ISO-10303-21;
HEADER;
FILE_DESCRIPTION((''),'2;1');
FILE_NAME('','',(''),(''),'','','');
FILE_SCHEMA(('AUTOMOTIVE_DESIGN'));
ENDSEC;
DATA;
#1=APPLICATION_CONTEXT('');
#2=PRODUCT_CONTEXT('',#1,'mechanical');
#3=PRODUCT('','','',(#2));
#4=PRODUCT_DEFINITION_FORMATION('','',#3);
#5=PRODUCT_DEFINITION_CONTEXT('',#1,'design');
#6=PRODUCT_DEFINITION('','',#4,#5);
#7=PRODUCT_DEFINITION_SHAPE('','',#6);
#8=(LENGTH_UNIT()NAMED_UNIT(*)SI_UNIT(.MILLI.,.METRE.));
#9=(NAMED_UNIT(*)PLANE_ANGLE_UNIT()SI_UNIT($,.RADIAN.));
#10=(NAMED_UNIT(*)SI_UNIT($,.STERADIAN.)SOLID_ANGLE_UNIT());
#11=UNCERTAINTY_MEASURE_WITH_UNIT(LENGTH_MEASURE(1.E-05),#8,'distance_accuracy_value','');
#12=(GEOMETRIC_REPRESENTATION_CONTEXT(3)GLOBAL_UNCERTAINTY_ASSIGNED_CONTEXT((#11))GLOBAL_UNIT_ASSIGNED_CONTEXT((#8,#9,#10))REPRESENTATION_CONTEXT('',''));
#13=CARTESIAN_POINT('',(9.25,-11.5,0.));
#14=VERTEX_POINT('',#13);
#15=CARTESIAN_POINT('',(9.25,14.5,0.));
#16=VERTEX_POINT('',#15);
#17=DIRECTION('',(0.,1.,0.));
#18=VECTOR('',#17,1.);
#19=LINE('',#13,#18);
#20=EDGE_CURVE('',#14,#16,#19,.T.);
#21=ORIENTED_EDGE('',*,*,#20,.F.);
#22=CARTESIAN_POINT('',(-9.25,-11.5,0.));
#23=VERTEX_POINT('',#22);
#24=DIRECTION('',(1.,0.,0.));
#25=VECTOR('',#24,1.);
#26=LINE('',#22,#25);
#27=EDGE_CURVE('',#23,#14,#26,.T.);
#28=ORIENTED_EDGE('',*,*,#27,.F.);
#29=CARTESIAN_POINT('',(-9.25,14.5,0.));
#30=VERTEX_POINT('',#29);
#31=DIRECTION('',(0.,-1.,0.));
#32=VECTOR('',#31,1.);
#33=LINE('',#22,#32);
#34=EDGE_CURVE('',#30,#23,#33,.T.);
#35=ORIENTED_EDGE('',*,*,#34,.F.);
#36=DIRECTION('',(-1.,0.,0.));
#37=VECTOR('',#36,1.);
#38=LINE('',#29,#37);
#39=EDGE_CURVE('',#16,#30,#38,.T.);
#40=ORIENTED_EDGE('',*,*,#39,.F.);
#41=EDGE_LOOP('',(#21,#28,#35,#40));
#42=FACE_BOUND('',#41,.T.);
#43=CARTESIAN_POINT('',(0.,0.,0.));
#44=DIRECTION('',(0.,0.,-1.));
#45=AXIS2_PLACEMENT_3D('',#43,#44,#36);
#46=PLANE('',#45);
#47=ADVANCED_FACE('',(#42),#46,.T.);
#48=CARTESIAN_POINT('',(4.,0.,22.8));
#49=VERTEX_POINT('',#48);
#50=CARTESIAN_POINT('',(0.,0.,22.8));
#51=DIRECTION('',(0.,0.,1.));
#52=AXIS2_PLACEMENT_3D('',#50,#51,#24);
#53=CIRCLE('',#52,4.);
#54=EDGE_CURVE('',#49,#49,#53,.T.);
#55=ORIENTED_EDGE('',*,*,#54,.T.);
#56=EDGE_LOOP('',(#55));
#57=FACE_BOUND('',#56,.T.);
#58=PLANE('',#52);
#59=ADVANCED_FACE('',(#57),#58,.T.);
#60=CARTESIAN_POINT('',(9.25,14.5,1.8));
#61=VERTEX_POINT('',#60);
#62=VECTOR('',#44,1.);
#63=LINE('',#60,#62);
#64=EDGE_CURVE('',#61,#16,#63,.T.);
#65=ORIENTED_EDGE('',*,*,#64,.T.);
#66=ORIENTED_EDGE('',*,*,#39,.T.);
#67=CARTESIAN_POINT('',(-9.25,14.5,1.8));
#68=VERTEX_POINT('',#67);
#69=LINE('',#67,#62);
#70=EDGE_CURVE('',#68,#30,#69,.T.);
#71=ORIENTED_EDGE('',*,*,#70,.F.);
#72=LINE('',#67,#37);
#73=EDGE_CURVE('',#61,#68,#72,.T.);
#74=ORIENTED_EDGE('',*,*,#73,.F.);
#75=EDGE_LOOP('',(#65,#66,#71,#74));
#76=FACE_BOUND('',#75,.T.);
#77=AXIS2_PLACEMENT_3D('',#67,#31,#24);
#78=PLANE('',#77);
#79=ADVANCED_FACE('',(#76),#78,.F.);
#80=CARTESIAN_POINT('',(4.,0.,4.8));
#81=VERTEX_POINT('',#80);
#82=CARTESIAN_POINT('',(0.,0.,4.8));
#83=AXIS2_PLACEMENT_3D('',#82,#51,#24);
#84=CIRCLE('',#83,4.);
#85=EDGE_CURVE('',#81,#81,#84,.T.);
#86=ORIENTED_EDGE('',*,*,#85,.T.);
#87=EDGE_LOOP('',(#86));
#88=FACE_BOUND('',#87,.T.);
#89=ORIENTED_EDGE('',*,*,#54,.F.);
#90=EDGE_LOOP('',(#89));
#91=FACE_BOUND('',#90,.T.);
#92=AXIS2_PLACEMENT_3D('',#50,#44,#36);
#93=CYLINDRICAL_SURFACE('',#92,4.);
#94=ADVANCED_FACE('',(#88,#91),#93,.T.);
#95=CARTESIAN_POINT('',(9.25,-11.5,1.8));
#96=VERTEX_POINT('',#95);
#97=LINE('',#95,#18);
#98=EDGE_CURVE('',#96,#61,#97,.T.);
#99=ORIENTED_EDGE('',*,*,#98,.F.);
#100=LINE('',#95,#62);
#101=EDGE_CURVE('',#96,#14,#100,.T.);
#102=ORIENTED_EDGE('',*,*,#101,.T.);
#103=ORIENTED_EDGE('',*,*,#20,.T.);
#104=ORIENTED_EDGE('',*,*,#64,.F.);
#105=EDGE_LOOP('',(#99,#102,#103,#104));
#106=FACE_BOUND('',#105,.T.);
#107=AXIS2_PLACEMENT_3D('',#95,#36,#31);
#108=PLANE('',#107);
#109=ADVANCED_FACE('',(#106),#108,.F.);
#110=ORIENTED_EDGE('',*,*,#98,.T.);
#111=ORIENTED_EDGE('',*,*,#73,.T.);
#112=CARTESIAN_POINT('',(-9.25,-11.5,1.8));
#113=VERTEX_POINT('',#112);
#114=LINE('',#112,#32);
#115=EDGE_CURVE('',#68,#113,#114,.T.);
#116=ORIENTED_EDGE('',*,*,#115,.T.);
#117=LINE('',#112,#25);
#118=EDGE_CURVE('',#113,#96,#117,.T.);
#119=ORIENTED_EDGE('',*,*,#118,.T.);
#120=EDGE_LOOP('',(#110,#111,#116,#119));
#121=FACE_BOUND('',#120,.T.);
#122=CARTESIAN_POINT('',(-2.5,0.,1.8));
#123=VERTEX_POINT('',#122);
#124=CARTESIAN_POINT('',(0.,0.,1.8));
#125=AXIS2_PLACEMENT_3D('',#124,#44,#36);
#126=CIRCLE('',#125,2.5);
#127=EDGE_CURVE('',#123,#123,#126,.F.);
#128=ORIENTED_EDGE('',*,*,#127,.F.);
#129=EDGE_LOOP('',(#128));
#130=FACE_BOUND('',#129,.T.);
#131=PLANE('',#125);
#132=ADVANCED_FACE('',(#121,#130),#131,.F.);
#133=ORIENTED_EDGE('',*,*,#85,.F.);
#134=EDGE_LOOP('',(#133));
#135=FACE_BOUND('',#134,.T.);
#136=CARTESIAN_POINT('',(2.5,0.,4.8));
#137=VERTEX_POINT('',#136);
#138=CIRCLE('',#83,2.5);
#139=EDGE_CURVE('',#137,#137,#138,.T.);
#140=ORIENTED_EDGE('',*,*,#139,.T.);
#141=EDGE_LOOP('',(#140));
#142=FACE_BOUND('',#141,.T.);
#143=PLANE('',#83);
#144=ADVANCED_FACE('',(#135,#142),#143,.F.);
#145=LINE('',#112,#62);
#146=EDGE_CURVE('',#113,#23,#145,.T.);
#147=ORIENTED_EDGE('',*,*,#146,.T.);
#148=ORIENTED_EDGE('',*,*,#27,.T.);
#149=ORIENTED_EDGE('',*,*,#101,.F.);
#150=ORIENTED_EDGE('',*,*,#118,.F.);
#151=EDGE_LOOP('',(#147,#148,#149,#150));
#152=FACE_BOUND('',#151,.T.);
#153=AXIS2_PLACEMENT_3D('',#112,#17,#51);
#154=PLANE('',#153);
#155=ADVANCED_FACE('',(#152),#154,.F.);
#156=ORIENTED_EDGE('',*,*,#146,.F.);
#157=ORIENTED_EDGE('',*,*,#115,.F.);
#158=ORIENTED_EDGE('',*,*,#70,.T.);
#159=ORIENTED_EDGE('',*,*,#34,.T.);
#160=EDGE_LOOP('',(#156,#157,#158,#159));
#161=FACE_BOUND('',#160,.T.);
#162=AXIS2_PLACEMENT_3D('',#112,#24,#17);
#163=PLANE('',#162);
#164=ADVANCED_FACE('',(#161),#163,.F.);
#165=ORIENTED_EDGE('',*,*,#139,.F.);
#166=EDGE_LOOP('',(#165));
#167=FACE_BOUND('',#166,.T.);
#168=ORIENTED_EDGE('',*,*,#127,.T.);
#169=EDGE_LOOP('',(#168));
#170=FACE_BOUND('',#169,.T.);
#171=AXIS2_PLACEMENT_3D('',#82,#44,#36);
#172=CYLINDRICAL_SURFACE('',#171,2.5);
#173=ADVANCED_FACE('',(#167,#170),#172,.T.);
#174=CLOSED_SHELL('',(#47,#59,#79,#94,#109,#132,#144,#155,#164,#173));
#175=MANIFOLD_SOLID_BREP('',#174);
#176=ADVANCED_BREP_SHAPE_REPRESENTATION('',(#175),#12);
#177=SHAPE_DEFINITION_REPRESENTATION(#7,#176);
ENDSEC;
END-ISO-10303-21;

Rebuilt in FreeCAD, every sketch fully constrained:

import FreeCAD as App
import Part
import Sketcher
from FreeCAD import Vector
Q = App.Units.Quantity

doc = App.newDocument("Part")
body = doc.addObject("PartDesign::Body", "Body")

# Sketch on XY plane
sketch1 = body.newObject("Sketcher::SketchObject", "Sketch")
sketch1.AttachmentSupport = (doc.getObject("XY_Plane"), [""])
sketch1.MapMode = "FlatFace"
sketch1.addGeometry([
    Part.LineSegment(Vector(-9, 14, 0), Vector(-9, -12, 0)),
    Part.LineSegment(Vector(-9, -12, 0), Vector(9, -12, 0)),
    Part.LineSegment(Vector(9, -12, 0), Vector(9, 14, 0)),
    Part.LineSegment(Vector(9, 14, 0), Vector(-9, 14, 0)),
], False)
sketch1.addConstraint([
    Sketcher.Constraint("Coincident", 0, 2, 1, 1),
    Sketcher.Constraint("Coincident", 1, 2, 2, 1),
    Sketcher.Constraint("Coincident", 2, 2, 3, 1),
    Sketcher.Constraint("Coincident", 3, 2, 0, 1),
    Sketcher.Constraint("Vertical", 0),
    Sketcher.Constraint("Horizontal", 1),
    Sketcher.Constraint("Vertical", 2),
    Sketcher.Constraint("Horizontal", 3),
    Sketcher.Constraint("DistanceY", 0, 2, 0, 1, Q("26 mm")),
    Sketcher.Constraint("DistanceX", 1, 1, 1, 2, Q("18.5 mm")),
    Sketcher.Constraint("DistanceY", 0, 2, -1, 1, Q("11.5 mm")),
    Sketcher.Constraint("DistanceX", 0, 2, -1, 1, Q("9.25 mm")),
])
pad1 = body.newObject("PartDesign::Pad", "Pad")
pad1.Profile = sketch1
pad1.Length = 1.8

# Sketch on XY plane
sketch2 = body.newObject("Sketcher::SketchObject", "Sketch001")
sketch2.AttachmentSupport = (doc.getObject("XY_Plane"), [""])
sketch2.MapMode = "FlatFace"
sketch2.AttachmentOffset = App.Placement(Vector(0, 0, 1.8), App.Rotation())
sketch2.addGeometry(Part.Circle(Vector(0, 0, 0), Vector(0, 0, 1), 2.5), False)
sketch2.addConstraint([
    Sketcher.Constraint("Coincident", 0, 3, -1, 1),
    Sketcher.Constraint("Diameter", 0, Q("5 mm")),
])
pad2 = body.newObject("PartDesign::Pad", "Pad001")
pad2.Profile = sketch2
pad2.Length = 3

# Sketch on XY plane
sketch3 = body.newObject("Sketcher::SketchObject", "Sketch002")
sketch3.AttachmentSupport = (doc.getObject("XY_Plane"), [""])
sketch3.MapMode = "FlatFace"
sketch3.AttachmentOffset = App.Placement(Vector(0, 0, 4.8), App.Rotation())
sketch3.addGeometry(Part.Circle(Vector(0, 0, 0), Vector(0, 0, 1), 4), False)
sketch3.addConstraint([
    Sketcher.Constraint("Coincident", 0, 3, -1, 1),
    Sketcher.Constraint("Diameter", 0, Q("8 mm")),
])
pad3 = body.newObject("PartDesign::Pad", "Pad002")
pad3.Profile = sketch3
pad3.Length = 18

doc.recompute()
